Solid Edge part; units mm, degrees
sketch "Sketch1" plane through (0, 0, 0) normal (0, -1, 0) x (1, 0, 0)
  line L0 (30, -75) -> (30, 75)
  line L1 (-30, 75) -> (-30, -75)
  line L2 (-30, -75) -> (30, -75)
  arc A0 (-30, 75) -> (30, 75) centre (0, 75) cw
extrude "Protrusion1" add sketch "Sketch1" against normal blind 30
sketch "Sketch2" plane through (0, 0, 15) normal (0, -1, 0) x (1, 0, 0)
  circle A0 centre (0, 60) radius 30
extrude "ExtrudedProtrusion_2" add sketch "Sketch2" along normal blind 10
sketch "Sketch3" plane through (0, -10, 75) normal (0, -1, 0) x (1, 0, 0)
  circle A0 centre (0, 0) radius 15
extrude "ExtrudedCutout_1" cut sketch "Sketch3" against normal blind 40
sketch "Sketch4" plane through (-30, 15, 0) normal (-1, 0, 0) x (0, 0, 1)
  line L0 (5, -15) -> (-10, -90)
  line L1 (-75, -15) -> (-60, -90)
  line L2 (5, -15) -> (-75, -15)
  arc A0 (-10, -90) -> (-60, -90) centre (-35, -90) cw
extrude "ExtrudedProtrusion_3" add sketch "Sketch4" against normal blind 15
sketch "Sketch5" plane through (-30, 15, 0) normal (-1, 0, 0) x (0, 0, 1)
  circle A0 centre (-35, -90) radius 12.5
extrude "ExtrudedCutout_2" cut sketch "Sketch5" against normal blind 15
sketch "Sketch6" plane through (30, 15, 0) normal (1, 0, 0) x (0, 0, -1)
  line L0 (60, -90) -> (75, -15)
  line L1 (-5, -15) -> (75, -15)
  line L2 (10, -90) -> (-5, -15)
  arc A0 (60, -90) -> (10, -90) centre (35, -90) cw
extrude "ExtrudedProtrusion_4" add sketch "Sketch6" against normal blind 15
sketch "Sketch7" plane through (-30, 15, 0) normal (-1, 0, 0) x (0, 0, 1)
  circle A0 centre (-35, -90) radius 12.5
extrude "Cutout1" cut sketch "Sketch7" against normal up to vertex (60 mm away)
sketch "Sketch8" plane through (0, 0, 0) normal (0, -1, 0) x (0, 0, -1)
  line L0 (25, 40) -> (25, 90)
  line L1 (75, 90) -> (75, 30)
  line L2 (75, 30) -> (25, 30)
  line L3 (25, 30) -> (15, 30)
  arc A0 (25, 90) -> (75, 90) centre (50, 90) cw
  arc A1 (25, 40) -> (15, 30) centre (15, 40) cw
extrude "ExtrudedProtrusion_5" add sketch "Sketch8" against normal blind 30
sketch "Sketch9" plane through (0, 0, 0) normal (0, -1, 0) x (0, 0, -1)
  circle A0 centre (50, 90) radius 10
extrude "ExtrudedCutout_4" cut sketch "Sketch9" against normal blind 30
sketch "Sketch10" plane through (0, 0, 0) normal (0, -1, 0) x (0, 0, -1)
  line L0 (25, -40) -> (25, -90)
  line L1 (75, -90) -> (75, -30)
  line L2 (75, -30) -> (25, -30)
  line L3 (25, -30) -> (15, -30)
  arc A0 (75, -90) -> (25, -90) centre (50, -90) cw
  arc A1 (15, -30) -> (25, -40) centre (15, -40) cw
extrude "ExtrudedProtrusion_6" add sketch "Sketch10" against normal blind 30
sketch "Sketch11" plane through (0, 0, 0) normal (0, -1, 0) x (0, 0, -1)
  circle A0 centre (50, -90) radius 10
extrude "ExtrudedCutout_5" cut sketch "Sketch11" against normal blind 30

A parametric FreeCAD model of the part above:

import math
import FreeCAD as App
import Part
import Sketcher

doc = App.newDocument("Part")
body = doc.addObject("PartDesign::Body", "Body")

# Sketch on XZ plane
sketch1 = doc.addObject("Sketcher::SketchObject", "Sketch")
body.addObject(sketch1)
sketch1.AttachmentSupport = (doc.XZ_Plane, [""])
sketch1.MapMode = "FlatFace"
sketch1.addGeometry(Part.LineSegment(App.Vector(-30, -75, 0), App.Vector(30, -75, 0)), False)
sketch1.addGeometry(Part.LineSegment(App.Vector(30, -75, 0), App.Vector(30, 75, 0)), False)
sketch1.addGeometry(Part.ArcOfCircle(Part.Circle(App.Vector(0, 75, 0), App.Vector(0, 0, 1), 30), math.radians(0), math.radians(180)), False)
sketch1.addGeometry(Part.LineSegment(App.Vector(-30, 75, 0), App.Vector(-30, -75, 0)), False)
sketch1.addConstraint(Sketcher.Constraint("Coincident", 0, 2, 1, 1))
sketch1.addConstraint(Sketcher.Constraint("Tangent", 1, 2, 2, 1))
sketch1.addConstraint(Sketcher.Constraint("Tangent", 2, 2, 3, 1))
sketch1.addConstraint(Sketcher.Constraint("Coincident", 3, 2, 0, 1))
sketch1.addConstraint(Sketcher.Constraint("Horizontal", 0))
sketch1.addConstraint(Sketcher.Constraint("Vertical", 1))
sketch1.addConstraint(Sketcher.Constraint("Vertical", 3))
sketch1.addConstraint(Sketcher.Constraint("Symmetric", 0, 2, 2, 2, -1, 1))
sketch1.addConstraint(Sketcher.Constraint("Radius", 2, 30.0))
sketch1.addConstraint(Sketcher.Constraint("DistanceY", 1, 1, 1, 2, 150.0))
pad1 = doc.addObject("PartDesign::Pad", "Pad")
body.addObject(pad1)
pad1.Profile = sketch1
pad1.Length = 30
pad1.Reversed = True

# Sketch on XZ plane
sketch2 = doc.addObject("Sketcher::SketchObject", "Sketch001")
body.addObject(sketch2)
sketch2.AttachmentSupport = (doc.XZ_Plane, [""])
sketch2.MapMode = "FlatFace"
sketch2.addGeometry(Part.Circle(App.Vector(0, 75, 0), App.Vector(0, 0, 1), 30), False)
sketch2.addConstraint(Sketcher.Constraint("PointOnObject", 0, 3, -2))
sketch2.addConstraint(Sketcher.Constraint("Diameter", 0, 60.0))
sketch2.addConstraint(Sketcher.Constraint("DistanceY", -1, 1, 0, 3, 75.0))
pad2 = doc.addObject("PartDesign::Pad", "Pad001")
body.addObject(pad2)
pad2.Profile = sketch2
pad2.Length = 10

# Sketch on XZ plane
sketch3 = doc.addObject("Sketcher::SketchObject", "Sketch002")
body.addObject(sketch3)
sketch3.AttachmentSupport = (doc.XZ_Plane, [""])
sketch3.MapMode = "FlatFace"
sketch3.AttachmentOffset = App.Placement(App.Vector(0, 0, 10), App.Rotation())
sketch3.addGeometry(Part.Circle(App.Vector(0, 75, 0), App.Vector(0, 0, 1), 15), False)
sketch3.addConstraint(Sketcher.Constraint("PointOnObject", 0, 3, -2))
sketch3.addConstraint(Sketcher.Constraint("Diameter", 0, 30.0))
sketch3.addConstraint(Sketcher.Constraint("DistanceY", -1, 1, 0, 3, 75.0))
pocket1 = doc.addObject("PartDesign::Pocket", "Pocket")
body.addObject(pocket1)
pocket1.Profile = sketch3
pocket1.Length = 40

# Sketch on YZ plane
sketch4 = doc.addObject("Sketcher::SketchObject", "Sketch003")
body.addObject(sketch4)
sketch4.AttachmentSupport = (doc.YZ_Plane, [""])
sketch4.MapMode = "FlatFace"
sketch4.AttachmentOffset = App.Placement(App.Vector(0, 0, -30), App.Rotation())
sketch4.addGeometry(Part.LineSegment(App.Vector(-75, -10, 0), App.Vector(0, 5, 0)), False)
sketch4.addGeometry(Part.LineSegment(App.Vector(0, 5, 0), App.Vector(0, -75, 0)), False)
sketch4.addGeometry(Part.LineSegment(App.Vector(0, -75, 0), App.Vector(-75, -60, 0)), False)
sketch4.addGeometry(Part.ArcOfCircle(Part.Circle(App.Vector(-75, -35, 0), App.Vector(0, 0, 1), 25), math.radians(90), math.radians(270)), False)
sketch4.addConstraint(Sketcher.Constraint("Coincident", 0, 2, 1, 1))
sketch4.addConstraint(Sketcher.Constraint("Coincident", 1, 2, 2, 1))
sketch4.addConstraint(Sketcher.Constraint("Coincident", 2, 2, 3, 2))
sketch4.addConstraint(Sketcher.Constraint("Coincident", 3, 1, 0, 1))
sketch4.addConstraint(Sketcher.Constraint("Vertical", 1))
sketch4.addConstraint(Sketcher.Constraint("PointOnObject", 0, 2, -2))
sketch4.addConstraint(Sketcher.Constraint("Vertical", 3, 3, 2, 2))
sketch4.addConstraint(Sketcher.Constraint("Vertical", 2, 2, 3, 1))
sketch4.addConstraint(Sketcher.Constraint("Equal", 0, 2))
sketch4.addConstraint(Sketcher.Constraint("Radius", 3, 25.0))
sketch4.addConstraint(Sketcher.Constraint("DistanceY", 1, 2, 1, 1, 80.0))
sketch4.addConstraint(Sketcher.Constraint("DistanceX", 3, 3, -1, 1, 75.0))
sketch4.addConstraint(Sketcher.Constraint("DistanceY", 3, 3, -1, 1, 35.0))
pad3 = doc.addObject("PartDesign::Pad", "Pad002")
body.addObject(pad3)
pad3.Profile = sketch4
pad3.Length = 15

# Sketch on YZ plane
sketch5 = doc.addObject("Sketcher::SketchObject", "Sketch004")
body.addObject(sketch5)
sketch5.AttachmentSupport = (doc.YZ_Plane, [""])
sketch5.MapMode = "FlatFace"
sketch5.AttachmentOffset = App.Placement(App.Vector(0, 0, -30), App.Rotation())
sketch5.addGeometry(Part.Circle(App.Vector(-75, -35, 0), App.Vector(0, 0, 1), 12), False)
sketch5.addConstraint(Sketcher.Constraint("Diameter", 0, 25.0))
sketch5.addConstraint(Sketcher.Constraint("DistanceX", 0, 3, -1, 1, 75.0))
sketch5.addConstraint(Sketcher.Constraint("DistanceY", 0, 3, -1, 1, 35.0))
pocket2 = doc.addObject("PartDesign::Pocket", "Pocket001")
body.addObject(pocket2)
pocket2.Profile = sketch5
pocket2.Length = 15
pocket2.Reversed = True

# Sketch on YZ plane
sketch6 = doc.addObject("Sketcher::SketchObject", "Sketch005")
body.addObject(sketch6)
sketch6.AttachmentSupport = (doc.YZ_Plane, [""])
sketch6.MapMode = "FlatFace"
sketch6.AttachmentOffset = App.Placement(App.Vector(0, 0, 30), App.Rotation())
sketch6.addGeometry(Part.ArcOfCircle(Part.Circle(App.Vector(-75, -35, 0), App.Vector(0, 0, 1), 25), math.radians(90), math.radians(270)), False)
sketch6.addGeometry(Part.LineSegment(App.Vector(-75, -60, 0), App.Vector(0, -75, 0)), False)
sketch6.addGeometry(Part.LineSegment(App.Vector(0, -75, 0), App.Vector(0, 5, 0)), False)
sketch6.addGeometry(Part.LineSegment(App.Vector(0, 5, 0), App.Vector(-75, -10, 0)), False)
sketch6.addConstraint(Sketcher.Constraint("Coincident", 0, 2, 1, 1))
sketch6.addConstraint(Sketcher.Constraint("Coincident", 1, 2, 2, 1))
sketch6.addConstraint(Sketcher.Constraint("Coincident", 2, 2, 3, 1))
sketch6.addConstraint(Sketcher.Constraint("Coincident", 3, 2, 0, 1))
sketch6.addConstraint(Sketcher.Constraint("Vertical", 2))
sketch6.addConstraint(Sketcher.Constraint("PointOnObject", 1, 2, -2))
sketch6.addConstraint(Sketcher.Constraint("Vertical", 0, 2, 3, 2))
sketch6.addConstraint(Sketcher.Constraint("Equal", 1, 3))
sketch6.addConstraint(Sketcher.Constraint("Radius", 0, 25.0))
sketch6.addConstraint(Sketcher.Constraint("DistanceY", 2, 1, 2, 2, 80.0))
sketch6.addConstraint(Sketcher.Constraint("DistanceX", 0, 3, -1, 1, 75.0))
sketch6.addConstraint(Sketcher.Constraint("DistanceY", 0, 3, -1, 1, 35.0))
sketch6.addConstraint(Sketcher.Constraint("DistanceX", 0, 2, -1, 1, 75.0))
pad4 = doc.addObject("PartDesign::Pad", "Pad003")
body.addObject(pad4)
pad4.Profile = sketch6
pad4.Length = 15
pad4.Reversed = True

# Sketch on YZ plane
sketch7 = doc.addObject("Sketcher::SketchObject", "Sketch006")
body.addObject(sketch7)
sketch7.AttachmentSupport = (doc.YZ_Plane, [""])
sketch7.MapMode = "FlatFace"
sketch7.AttachmentOffset = App.Placement(App.Vector(0, 0, -30), App.Rotation())
sketch7.addGeometry(Part.Circle(App.Vector(-75, -35, 0), App.Vector(0, 0, 1), 12), False)
sketch7.addConstraint(Sketcher.Constraint("Diameter", 0, 25.0))
sketch7.addConstraint(Sketcher.Constraint("DistanceX", 0, 3, -1, 1, 75.0))
sketch7.addConstraint(Sketcher.Constraint("DistanceY", 0, 3, -1, 1, 35.0))
pocket3 = doc.addObject("PartDesign::Pocket", "Pocket002")
body.addObject(pocket3)
pocket3.Profile = sketch7
pocket3.Length = 60
pocket3.Reversed = True

# Sketch on XZ plane
sketch8 = doc.addObject("Sketcher::SketchObject", "Sketch007")
body.addObject(sketch8)
sketch8.AttachmentSupport = (doc.XZ_Plane, [""])
sketch8.MapMode = "FlatFace"
sketch8.addGeometry(Part.LineSegment(App.Vector(90, -25, 0), App.Vector(40, -25, 0)), False)
sketch8.addGeometry(Part.ArcOfCircle(Part.Circle(App.Vector(40, -15, 0), App.Vector(0, 0, 1), 10), math.radians(180), math.radians(270)), False)
sketch8.addGeometry(Part.LineSegment(App.Vector(30, -15, 0), App.Vector(30, -75, 0)), False)
sketch8.addGeometry(Part.LineSegment(App.Vector(30, -75, 0), App.Vector(90, -75, 0)), False)
sketch8.addGeometry(Part.ArcOfCircle(Part.Circle(App.Vector(90, -50, 0), App.Vector(0, 0, 1), 25), math.radians(-90), math.radians(90)), False)
sketch8.addConstraint(Sketcher.Constraint("Tangent", 0, 2, 1, 2))
sketch8.addConstraint(Sketcher.Constraint("Tangent", 1, 1, 2, 1))
sketch8.addConstraint(Sketcher.Constraint("Coincident", 2, 2, 3, 1))
sketch8.addConstraint(Sketcher.Constraint("Tangent", 3, 2, 4, 1))
sketch8.addConstraint(Sketcher.Constraint("Tangent", 4, 2, 0, 1))
sketch8.addConstraint(Sketcher.Constraint("Horizontal", 0))
sketch8.addConstraint(Sketcher.Constraint("Vertical", 2))
sketch8.addConstraint(Sketcher.Constraint("Horizontal", 3))
sketch8.addConstraint(Sketcher.Constraint("Equal", 3, 2))
sketch8.addConstraint(Sketcher.Constraint("Radius", 1, 10.0))
sketch8.addConstraint(Sketcher.Constraint("Radius", 4, 25.0))
sketch8.addConstraint(Sketcher.Constraint("DistanceX", -1, 1, 1, 3, 40.0))
sketch8.addConstraint(Sketcher.Constraint("DistanceY", 1, 3, -1, 1, 15.0))
pad5 = doc.addObject("PartDesign::Pad", "Pad004")
body.addObject(pad5)
pad5.Profile = sketch8
pad5.Length = 30
pad5.Reversed = True

# Sketch on XZ plane
sketch9 = doc.addObject("Sketcher::SketchObject", "Sketch008")
body.addObject(sketch9)
sketch9.AttachmentSupport = (doc.XZ_Plane, [""])
sketch9.MapMode = "FlatFace"
sketch9.addGeometry(Part.Circle(App.Vector(90, -50, 0), App.Vector(0, 0, 1), 10), False)
sketch9.addConstraint(Sketcher.Constraint("Diameter", 0, 20.0))
sketch9.addConstraint(Sketcher.Constraint("DistanceX", -1, 1, 0, 3, 90.0))
sketch9.addConstraint(Sketcher.Constraint("DistanceY", 0, 3, -1, 1, 50.0))
pocket4 = doc.addObject("PartDesign::Pocket", "Pocket003")
body.addObject(pocket4)
pocket4.Profile = sketch9
pocket4.Length = 30

# Sketch on XZ plane
sketch10 = doc.addObject("Sketcher::SketchObject", "Sketch009")
body.addObject(sketch10)
sketch10.AttachmentSupport = (doc.XZ_Plane, [""])
sketch10.MapMode = "FlatFace"
sketch10.addGeometry(Part.ArcOfCircle(Part.Circle(App.Vector(-40, -15, 0), App.Vector(0, 0, 1), 10), math.radians(-90), math.radians(0)), False)
sketch10.addGeometry(Part.LineSegment(App.Vector(-40, -25, 0), App.Vector(-90, -25, 0)), False)
sketch10.addGeometry(Part.ArcOfCircle(Part.Circle(App.Vector(-90, -50, 0), App.Vector(0, 0, 1), 25), math.radians(90), math.radians(270)), False)
sketch10.addGeometry(Part.LineSegment(App.Vector(-90, -75, 0), App.Vector(-30, -75, 0)), False)
sketch10.addGeometry(Part.LineSegment(App.Vector(-30, -75, 0), App.Vector(-30, -15, 0)), False)
sketch10.addConstraint(Sketcher.Constraint("Tangent", 0, 1, 1, 1))
sketch10.addConstraint(Sketcher.Constraint("Tangent", 1, 2, 2, 1))
sketch10.addConstraint(Sketcher.Constraint("Tangent", 2, 2, 3, 1))
sketch10.addConstraint(Sketcher.Constraint("Coincident", 3, 2, 4, 1))
sketch10.addConstraint(Sketcher.Constraint("Tangent", 4, 2, 0, 2))
sketch10.addConstraint(Sketcher.Constraint("Horizontal", 1))
sketch10.addConstraint(Sketcher.Constraint("Horizontal", 3))
sketch10.addConstraint(Sketcher.Constraint("Vertical", 4))
sketch10.addConstraint(Sketcher.Constraint("Equal", 3, 4))
sketch10.addConstraint(Sketcher.Constraint("Radius", 0, 10.0))
sketch10.addConstraint(Sketcher.Constraint("Radius", 2, 25.0))
sketch10.addConstraint(Sketcher.Constraint("DistanceX", 0, 3, -1, 1, 40.0))
sketch10.addConstraint(Sketcher.Constraint("DistanceY", 0, 3, -1, 1, 15.0))
pad6 = doc.addObject("PartDesign::Pad", "Pad005")
body.addObject(pad6)
pad6.Profile = sketch10
pad6.Length = 30
pad6.Reversed = True

# Sketch on XZ plane
sketch11 = doc.addObject("Sketcher::SketchObject", "Sketch010")
body.addObject(sketch11)
sketch11.AttachmentSupport = (doc.XZ_Plane, [""])
sketch11.MapMode = "FlatFace"
sketch11.addGeometry(Part.Circle(App.Vector(-90, -50, 0), App.Vector(0, 0, 1), 10), False)
sketch11.addConstraint(Sketcher.Constraint("Diameter", 0, 20.0))
sketch11.addConstraint(Sketcher.Constraint("DistanceX", 0, 3, -1, 1, 90.0))
sketch11.addConstraint(Sketcher.Constraint("DistanceY", 0, 3, -1, 1, 50.0))
pocket5 = doc.addObject("PartDesign::Pocket", "Pocket004")
body.addObject(pocket5)
pocket5.Profile = sketch11
pocket5.Length = 30

doc.recompute()
